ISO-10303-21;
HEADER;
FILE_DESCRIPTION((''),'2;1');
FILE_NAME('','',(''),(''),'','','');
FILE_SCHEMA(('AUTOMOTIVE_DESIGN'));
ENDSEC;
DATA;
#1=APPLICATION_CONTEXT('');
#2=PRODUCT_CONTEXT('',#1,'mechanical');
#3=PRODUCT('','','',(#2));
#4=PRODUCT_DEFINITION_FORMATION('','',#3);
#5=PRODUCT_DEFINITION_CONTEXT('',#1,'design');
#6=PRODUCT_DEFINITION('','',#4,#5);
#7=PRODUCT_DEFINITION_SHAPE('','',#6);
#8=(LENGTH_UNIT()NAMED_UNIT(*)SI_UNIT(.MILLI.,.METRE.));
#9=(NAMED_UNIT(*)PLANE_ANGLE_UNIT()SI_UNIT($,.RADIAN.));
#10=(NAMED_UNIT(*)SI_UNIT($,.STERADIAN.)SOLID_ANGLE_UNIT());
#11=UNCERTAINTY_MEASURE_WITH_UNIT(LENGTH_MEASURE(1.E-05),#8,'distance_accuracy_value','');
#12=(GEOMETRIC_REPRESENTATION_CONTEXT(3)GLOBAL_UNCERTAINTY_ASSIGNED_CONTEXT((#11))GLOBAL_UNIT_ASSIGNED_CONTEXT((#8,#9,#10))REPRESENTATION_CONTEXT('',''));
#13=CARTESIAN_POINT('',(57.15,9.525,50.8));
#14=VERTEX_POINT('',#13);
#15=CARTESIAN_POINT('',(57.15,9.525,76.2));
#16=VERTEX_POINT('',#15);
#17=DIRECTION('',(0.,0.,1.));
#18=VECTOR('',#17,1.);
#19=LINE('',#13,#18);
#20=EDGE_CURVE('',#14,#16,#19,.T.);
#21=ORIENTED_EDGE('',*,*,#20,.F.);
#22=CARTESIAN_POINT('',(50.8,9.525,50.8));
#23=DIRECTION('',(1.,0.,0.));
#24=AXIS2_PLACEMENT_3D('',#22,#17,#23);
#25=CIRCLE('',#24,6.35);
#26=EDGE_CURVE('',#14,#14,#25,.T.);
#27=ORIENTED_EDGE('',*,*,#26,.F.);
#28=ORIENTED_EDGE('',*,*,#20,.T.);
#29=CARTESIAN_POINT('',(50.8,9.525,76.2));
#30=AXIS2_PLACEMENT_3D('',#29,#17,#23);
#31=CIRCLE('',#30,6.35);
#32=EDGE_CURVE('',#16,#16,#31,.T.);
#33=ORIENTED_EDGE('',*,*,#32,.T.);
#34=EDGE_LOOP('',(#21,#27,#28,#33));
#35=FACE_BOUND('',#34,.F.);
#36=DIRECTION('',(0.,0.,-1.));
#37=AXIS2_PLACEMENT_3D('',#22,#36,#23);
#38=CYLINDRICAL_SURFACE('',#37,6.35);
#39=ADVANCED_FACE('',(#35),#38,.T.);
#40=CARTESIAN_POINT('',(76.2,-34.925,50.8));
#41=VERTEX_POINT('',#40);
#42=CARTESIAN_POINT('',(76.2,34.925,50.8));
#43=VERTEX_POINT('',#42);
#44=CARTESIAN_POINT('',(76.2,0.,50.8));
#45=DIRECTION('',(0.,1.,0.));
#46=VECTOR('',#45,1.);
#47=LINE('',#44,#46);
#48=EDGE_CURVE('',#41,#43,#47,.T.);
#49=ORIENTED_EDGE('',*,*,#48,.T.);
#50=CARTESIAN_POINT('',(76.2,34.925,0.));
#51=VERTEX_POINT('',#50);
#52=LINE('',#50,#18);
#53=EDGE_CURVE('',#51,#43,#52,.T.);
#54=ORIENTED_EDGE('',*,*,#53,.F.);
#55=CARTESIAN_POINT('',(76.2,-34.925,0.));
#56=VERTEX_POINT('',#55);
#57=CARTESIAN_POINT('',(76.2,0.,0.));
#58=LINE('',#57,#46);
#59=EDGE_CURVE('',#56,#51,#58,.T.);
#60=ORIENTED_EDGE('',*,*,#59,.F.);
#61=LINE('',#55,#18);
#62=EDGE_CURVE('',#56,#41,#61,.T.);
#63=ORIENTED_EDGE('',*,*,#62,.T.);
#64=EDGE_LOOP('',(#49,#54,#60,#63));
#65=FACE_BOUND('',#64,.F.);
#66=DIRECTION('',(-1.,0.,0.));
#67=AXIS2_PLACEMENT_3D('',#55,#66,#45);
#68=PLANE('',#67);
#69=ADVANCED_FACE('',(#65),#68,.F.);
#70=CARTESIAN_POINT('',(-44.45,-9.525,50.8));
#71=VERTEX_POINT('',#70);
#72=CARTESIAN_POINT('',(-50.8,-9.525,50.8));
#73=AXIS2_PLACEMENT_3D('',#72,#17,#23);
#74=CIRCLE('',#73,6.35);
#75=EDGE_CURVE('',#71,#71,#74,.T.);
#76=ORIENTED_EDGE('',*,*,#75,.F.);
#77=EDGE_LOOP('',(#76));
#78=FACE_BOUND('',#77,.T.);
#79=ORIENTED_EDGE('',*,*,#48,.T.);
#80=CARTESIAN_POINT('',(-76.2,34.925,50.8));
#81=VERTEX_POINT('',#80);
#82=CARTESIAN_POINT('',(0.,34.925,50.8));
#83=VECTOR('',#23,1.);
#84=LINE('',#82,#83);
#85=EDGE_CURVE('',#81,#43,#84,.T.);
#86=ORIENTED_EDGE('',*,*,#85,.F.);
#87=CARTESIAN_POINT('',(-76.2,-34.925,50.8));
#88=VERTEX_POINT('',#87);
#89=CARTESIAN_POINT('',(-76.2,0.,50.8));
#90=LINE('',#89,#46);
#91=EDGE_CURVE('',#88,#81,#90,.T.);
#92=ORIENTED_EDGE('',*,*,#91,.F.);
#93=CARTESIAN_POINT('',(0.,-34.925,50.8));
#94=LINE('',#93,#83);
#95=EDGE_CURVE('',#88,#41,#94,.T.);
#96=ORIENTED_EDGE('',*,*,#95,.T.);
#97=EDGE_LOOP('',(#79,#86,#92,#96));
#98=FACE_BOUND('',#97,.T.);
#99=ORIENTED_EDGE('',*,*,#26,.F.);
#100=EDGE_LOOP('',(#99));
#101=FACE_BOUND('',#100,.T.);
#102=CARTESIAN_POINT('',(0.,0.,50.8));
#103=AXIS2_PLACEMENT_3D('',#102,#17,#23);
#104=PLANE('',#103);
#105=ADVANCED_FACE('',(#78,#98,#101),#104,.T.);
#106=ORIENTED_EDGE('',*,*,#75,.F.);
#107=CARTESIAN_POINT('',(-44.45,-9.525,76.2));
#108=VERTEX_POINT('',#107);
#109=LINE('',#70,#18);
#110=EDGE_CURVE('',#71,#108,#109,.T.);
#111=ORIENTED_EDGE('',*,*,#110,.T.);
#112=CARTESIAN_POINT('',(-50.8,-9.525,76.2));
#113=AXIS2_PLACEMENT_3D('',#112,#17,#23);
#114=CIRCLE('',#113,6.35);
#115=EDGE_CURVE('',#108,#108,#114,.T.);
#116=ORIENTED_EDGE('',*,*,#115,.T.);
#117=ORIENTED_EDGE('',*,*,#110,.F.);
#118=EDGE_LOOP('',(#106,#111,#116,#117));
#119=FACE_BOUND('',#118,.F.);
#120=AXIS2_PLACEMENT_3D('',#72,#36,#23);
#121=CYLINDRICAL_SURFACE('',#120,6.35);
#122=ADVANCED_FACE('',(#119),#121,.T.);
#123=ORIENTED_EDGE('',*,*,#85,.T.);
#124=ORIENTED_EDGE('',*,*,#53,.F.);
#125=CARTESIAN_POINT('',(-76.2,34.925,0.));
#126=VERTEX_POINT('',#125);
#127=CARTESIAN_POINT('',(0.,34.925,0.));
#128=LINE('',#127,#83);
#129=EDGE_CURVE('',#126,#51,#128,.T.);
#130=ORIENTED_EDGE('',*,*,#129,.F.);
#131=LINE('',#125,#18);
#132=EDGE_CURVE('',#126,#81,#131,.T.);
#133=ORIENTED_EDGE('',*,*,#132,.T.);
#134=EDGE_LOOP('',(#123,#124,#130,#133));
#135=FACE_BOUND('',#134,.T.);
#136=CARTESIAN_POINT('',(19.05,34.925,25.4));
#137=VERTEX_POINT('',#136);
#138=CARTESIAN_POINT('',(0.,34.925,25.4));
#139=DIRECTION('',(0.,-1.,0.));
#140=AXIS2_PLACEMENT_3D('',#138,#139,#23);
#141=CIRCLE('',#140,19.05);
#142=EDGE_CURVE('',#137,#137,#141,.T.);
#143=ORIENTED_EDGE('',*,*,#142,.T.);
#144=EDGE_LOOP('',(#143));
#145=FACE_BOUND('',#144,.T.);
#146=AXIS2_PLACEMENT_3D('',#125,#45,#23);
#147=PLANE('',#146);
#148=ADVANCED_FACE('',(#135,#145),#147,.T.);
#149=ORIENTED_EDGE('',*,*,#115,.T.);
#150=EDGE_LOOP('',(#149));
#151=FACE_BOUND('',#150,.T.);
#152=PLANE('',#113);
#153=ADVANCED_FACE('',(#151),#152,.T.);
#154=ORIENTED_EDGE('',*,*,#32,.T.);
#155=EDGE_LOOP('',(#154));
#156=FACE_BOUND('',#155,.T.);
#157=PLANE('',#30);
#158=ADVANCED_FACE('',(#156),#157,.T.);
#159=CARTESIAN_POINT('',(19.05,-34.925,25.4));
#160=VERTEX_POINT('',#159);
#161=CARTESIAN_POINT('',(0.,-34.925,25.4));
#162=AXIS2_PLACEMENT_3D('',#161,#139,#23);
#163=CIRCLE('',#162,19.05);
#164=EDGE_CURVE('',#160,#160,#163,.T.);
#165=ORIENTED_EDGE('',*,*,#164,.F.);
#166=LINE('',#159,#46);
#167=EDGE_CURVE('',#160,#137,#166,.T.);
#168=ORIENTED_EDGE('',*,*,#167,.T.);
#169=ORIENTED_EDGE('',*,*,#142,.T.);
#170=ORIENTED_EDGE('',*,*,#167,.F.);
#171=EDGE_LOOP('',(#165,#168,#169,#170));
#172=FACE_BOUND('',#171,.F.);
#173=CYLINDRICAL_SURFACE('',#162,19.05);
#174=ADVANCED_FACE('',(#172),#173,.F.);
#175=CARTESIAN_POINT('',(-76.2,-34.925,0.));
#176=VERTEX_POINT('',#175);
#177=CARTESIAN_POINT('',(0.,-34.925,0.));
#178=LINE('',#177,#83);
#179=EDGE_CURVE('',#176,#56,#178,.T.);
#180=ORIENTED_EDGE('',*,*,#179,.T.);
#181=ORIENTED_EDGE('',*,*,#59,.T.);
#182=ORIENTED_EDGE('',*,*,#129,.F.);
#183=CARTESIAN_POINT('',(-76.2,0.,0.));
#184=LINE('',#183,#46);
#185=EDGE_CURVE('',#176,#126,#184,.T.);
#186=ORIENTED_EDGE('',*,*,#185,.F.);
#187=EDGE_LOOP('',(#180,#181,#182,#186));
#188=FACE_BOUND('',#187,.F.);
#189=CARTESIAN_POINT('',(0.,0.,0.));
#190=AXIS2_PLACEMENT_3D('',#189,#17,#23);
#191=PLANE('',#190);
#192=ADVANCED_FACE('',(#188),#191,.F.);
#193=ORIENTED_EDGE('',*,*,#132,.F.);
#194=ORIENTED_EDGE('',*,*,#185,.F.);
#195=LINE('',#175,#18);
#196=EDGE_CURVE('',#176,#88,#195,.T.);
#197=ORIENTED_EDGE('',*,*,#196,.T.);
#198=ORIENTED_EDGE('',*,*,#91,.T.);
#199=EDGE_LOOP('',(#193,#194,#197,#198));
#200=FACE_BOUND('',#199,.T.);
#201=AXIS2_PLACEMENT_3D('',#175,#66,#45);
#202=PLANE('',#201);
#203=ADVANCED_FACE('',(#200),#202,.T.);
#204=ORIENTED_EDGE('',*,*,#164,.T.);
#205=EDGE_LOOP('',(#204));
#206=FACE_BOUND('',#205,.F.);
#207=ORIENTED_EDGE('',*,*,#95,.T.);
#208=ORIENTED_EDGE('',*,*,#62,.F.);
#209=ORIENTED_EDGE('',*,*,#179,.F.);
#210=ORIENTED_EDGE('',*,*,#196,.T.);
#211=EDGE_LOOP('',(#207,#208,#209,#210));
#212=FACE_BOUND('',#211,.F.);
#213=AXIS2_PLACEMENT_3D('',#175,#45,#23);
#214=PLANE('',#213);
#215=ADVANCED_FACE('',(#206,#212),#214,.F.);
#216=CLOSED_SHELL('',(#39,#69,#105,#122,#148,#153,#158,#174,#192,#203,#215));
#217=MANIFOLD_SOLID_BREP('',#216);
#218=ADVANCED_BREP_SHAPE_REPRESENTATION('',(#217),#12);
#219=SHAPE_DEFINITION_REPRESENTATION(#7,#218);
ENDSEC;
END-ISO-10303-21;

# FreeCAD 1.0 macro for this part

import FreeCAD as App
import Part
import Sketcher
from FreeCAD import Vector
Q = App.Units.Quantity


def add_polygon(sketch, points):
    """Adds a closed chain of lines whose ends are joined by coincident constraints."""
    first, n = sketch.GeometryCount, len(points)
    for a, b in zip(points, points[1:] + points[:1]):
        sketch.addGeometry(Part.LineSegment(App.Vector(*a, 0), App.Vector(*b, 0)), False)
    for i in range(n):
        sketch.addConstraint(Sketcher.Constraint("Coincident", first + i, 2, first + (i + 1) % n, 1))

doc = App.newDocument("Part")
body = doc.addObject("PartDesign::Body", "Body")

sketch1 = doc.addObject("Sketcher::SketchObject", "Sketch")
body.addObject(sketch1)
sketch1.AttachmentSupport = (doc.XY_Plane, [""])
sketch1.MapMode = "FlatFace"
add_polygon(sketch1, [(-76, 35), (-76, -35), (76, -35), (76, 35)])
sketch1.addConstraint([
    Sketcher.Constraint("Vertical", 0),
    Sketcher.Constraint("Horizontal", 1),
    Sketcher.Constraint("Vertical", 2),
    Sketcher.Constraint("Horizontal", 3),
    Sketcher.Constraint("Symmetric", 0, 2, 2, 2, -1, 1),
    Sketcher.Constraint("DistanceX", 1, 1, 1, 2, Q("6 in")),
    Sketcher.Constraint("DistanceY", 0, 2, 0, 1, Q("2.75 in")),
])
pad1 = doc.addObject("PartDesign::Pad", "Pad")
body.addObject(pad1)
pad1.Profile = sketch1
pad1.Length = Q("2 in")

sketch2 = doc.addObject("Sketcher::SketchObject", "Sketch001")
body.addObject(sketch2)
sketch2.AttachmentSupport = (doc.XZ_Plane, [""])
sketch2.MapMode = "FlatFace"
sketch2.AttachmentOffset = App.Placement(Vector(0, 0, 1.375 * 25.4), App.Rotation())
sketch2.addGeometry(Part.Circle(Vector(0, 25, 0), Vector(0, 0, 1), 19), False)
sketch2.addConstraint([
    Sketcher.Constraint("PointOnObject", 0, 3, -2),
    Sketcher.Constraint("Diameter", 0, Q("1.5 in")),
    Sketcher.Constraint("DistanceY", -1, 1, 0, 3, Q("1 in")),
])
pocket1 = doc.addObject("PartDesign::Pocket", "Pocket")
body.addObject(pocket1)
pocket1.Profile = sketch2
pocket1.Length = Q("7.93 in")

sketch3 = doc.addObject("Sketcher::SketchObject", "Sketch002")
body.addObject(sketch3)
sketch3.AttachmentSupport = (doc.XY_Plane, [""])
sketch3.MapMode = "FlatFace"
sketch3.AttachmentOffset = App.Placement(Vector(0, 0, 2 * 25.4), App.Rotation())
sketch3.addGeometry([
    Part.Circle(Vector(51, 10, 0), Vector(0, 0, 1), 6),
    Part.Circle(Vector(-51, -10, 0), Vector(0, 0, 1), 6),
], False)
sketch3.addConstraint([
    Sketcher.Constraint("Equal", 0, 1),
    Sketcher.Constraint("Symmetric", 0, 3, 1, 3, -1, 1),
    Sketcher.Constraint("Diameter", 0, Q("0.5 in")),
    Sketcher.Constraint("DistanceX", -1, 1, 0, 3, Q("2 in")),
    Sketcher.Constraint("DistanceY", 1, 3, 0, 3, Q("0.75 in")),
])
pad2 = doc.addObject("PartDesign::Pad", "Pad001")
body.addObject(pad2)
pad2.Profile = sketch3
pad2.Length = Q("1 in")

doc.recompute()
